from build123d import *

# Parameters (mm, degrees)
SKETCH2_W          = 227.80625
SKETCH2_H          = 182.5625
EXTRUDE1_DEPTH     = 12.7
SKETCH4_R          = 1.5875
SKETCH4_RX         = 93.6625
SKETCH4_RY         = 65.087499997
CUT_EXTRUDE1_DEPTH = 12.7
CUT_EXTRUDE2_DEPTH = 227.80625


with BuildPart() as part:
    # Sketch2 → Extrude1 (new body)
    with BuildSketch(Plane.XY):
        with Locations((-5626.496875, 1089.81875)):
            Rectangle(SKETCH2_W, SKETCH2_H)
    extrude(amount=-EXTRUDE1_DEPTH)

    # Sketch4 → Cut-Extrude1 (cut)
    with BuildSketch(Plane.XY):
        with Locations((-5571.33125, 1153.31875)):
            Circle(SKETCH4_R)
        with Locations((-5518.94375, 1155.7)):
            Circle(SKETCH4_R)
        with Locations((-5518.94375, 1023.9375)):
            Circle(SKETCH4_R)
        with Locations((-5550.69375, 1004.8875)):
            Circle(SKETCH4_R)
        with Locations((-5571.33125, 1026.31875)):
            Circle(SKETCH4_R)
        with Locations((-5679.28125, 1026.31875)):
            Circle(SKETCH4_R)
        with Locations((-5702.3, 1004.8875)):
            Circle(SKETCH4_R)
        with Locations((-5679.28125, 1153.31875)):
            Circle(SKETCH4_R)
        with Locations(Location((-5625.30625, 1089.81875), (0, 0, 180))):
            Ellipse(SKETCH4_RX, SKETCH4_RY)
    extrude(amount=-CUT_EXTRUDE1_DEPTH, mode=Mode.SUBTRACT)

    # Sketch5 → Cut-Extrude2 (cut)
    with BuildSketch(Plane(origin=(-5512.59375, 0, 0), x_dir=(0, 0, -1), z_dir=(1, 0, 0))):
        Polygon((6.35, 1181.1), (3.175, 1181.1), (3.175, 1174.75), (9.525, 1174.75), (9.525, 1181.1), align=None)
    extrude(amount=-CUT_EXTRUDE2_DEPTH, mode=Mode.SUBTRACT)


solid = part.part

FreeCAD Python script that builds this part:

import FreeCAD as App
import Part
import Sketcher
from FreeCAD import Vector
Q = App.Units.Quantity


def add_polygon(sketch, points):
    """Adds a closed chain of lines whose ends are joined by coincident constraints."""
    first, n = sketch.GeometryCount, len(points)
    for a, b in zip(points, points[1:] + points[:1]):
        sketch.addGeometry(Part.LineSegment(App.Vector(*a, 0), App.Vector(*b, 0)), False)
    for i in range(n):
        sketch.addConstraint(Sketcher.Constraint("Coincident", first + i, 2, first + (i + 1) % n, 1))

doc = App.newDocument("Part")
params = doc.addObject("Spreadsheet::Sheet", "Params")
for row, (alias, value) in enumerate([
    ("sketch1_width", "8.96875 in"),
    ("sketch1_height", "7.1875 in"),
    ("pad1_length", "0.5 in"),
    ("sketch2_diameter", "0.125 in"),
    ("pocket1_length", "0.5 in"),
    ("sketch3_width", "0.25 in"),
    ("pocket2_length", "8.96875 in"),
], start=1):
    params.set(f"A{row}", alias)
    params.set(f"B{row}", "=" + value)
    params.setAlias(f"B{row}", alias)

body = doc.addObject("PartDesign::Body", "Body")

# Sketch on XY plane
sketch1 = body.newObject("Sketcher::SketchObject", "Sketch")
sketch1.AttachmentSupport = (doc.getObject("XY_Plane"), [""])
sketch1.MapMode = "FlatFace"
add_polygon(sketch1, [(-5740.4, 1181.1), (-5740.4, 998.5375), (-5512.59375, 998.5375), (-5512.59375, 1181.1)])  # lines 0-3
sketch1.addConstraint(Sketcher.Constraint("Vertical", 0))
sketch1.addConstraint(Sketcher.Constraint("Horizontal", 1))
sketch1.addConstraint(Sketcher.Constraint("Vertical", 2))
sketch1.addConstraint(Sketcher.Constraint("Horizontal", 3))
sketch1.addConstraint(Sketcher.Constraint("DistanceX", 0, 2, -1, 1, Q("226 in")))
sketch1.addConstraint(Sketcher.Constraint("DistanceY", -1, 1, 2, 2, Q("46.5 in")))
sketch1.addConstraint(Sketcher.Constraint("DistanceX", 1, 1, 1, 2, Q("8.96875 in")))
sketch1.addConstraint(Sketcher.Constraint("DistanceY", 0, 2, 0, 1, Q("7.1875 in")))
sketch1.setExpression("Constraints[10]", "Params.sketch1_width")
sketch1.setExpression("Constraints[11]", "Params.sketch1_height")
pad1 = body.newObject("PartDesign::Pad", "Pad")
pad1.Profile = sketch1
pad1.setExpression("Length", "Params.pad1_length")
pad1.Reversed = True

# Sketch on XY plane
sketch2 = body.newObject("Sketcher::SketchObject", "Sketch001")
sketch2.AttachmentSupport = (doc.getObject("XY_Plane"), [""])
sketch2.MapMode = "FlatFace"
sketch2.addGeometry(Part.Circle(Vector(-5571.33125, 1153.31875, 0), Vector(0, 0, 1), 1.5875), False)
sketch2.addGeometry(Part.Circle(Vector(-5518.94375, 1155.7, 0), Vector(0, 0, 1), 1.5875), False)
sketch2.addGeometry(Part.Circle(Vector(-5518.94375, 1023.9375, 0), Vector(0, 0, 1), 1.5875), False)
sketch2.addGeometry(Part.Circle(Vector(-5550.69375, 1004.8875, 0), Vector(0, 0, 1), 1.5875), False)
sketch2.addGeometry(Part.Circle(Vector(-5571.33125, 1026.31875, 0), Vector(0, 0, 1), 1.5875), False)
sketch2.addGeometry(Part.Circle(Vector(-5679.28125, 1026.31875, 0), Vector(0, 0, 1), 1.5875), False)
sketch2.addGeometry(Part.Circle(Vector(-5702.3, 1004.8875, 0), Vector(0, 0, 1), 1.5875), False)
sketch2.addGeometry(Part.Circle(Vector(-5679.28125, 1153.31875, 0), Vector(0, 0, 1), 1.5875), False)
sketch2.addGeometry(Part.Ellipse(Vector(-5718.96875, 1089.81875, 0), Vector(-5625.30625, 1024.73125, 0), Vector(-5625.30625, 1089.81875, 0)), False)
sketch2.addConstraint(Sketcher.Constraint("Block", 8))
sketch2.addConstraint(Sketcher.Constraint("Equal", 0, 1))
sketch2.addConstraint(Sketcher.Constraint("Equal", 1, 2))
sketch2.addConstraint(Sketcher.Constraint("Equal", 2, 3))
sketch2.addConstraint(Sketcher.Constraint("Equal", 3, 4))
sketch2.addConstraint(Sketcher.Constraint("Equal", 4, 5))
sketch2.addConstraint(Sketcher.Constraint("Equal", 5, 6))
sketch2.addConstraint(Sketcher.Constraint("Equal", 6, 7))
sketch2.addConstraint(Sketcher.Constraint("Horizontal", 4, 3, 5, 3))
sketch2.addConstraint(Sketcher.Constraint("Horizontal", 3, 3, 6, 3))
sketch2.addConstraint(Sketcher.Constraint("Horizontal", 0, 3, 7, 3))
sketch2.addConstraint(Sketcher.Constraint("Vertical", 1, 3, 2, 3))
sketch2.addConstraint(Sketcher.Constraint("Vertical", 0, 3, 4, 3))
sketch2.addConstraint(Sketcher.Constraint("Vertical", 5, 3, 7, 3))
sketch2.addConstraint(Sketcher.Constraint("Diameter", 0, Q("0.125 in")))
sketch2.addConstraint(Sketcher.Constraint("DistanceY", 4, 3, 0, 3, Q("5 in")))
sketch2.addConstraint(Sketcher.Constraint("DistanceY", -1, 1, 1, 3, Q("45.5 in")))
sketch2.addConstraint(Sketcher.Constraint("DistanceX", 6, 3, -1, 1, Q("224.5 in")))
sketch2.addConstraint(Sketcher.Constraint("DistanceX", 3, 3, 2, 3, Q("1.25 in")))
sketch2.addConstraint(Sketcher.Constraint("DistanceY", 3, 3, 2, 3, Q("0.75 in")))
sketch2.addConstraint(Sketcher.Constraint("DistanceX", 5, 3, 4, 3, Q("4.25 in")))
sketch2.addConstraint(Sketcher.Constraint("DistanceX", 0, 3, -1, 1, Q("219.34375 in")))
sketch2.addConstraint(Sketcher.Constraint("DistanceY", -1, 1, 0, 3, Q("45.40625 in")))
sketch2.addConstraint(Sketcher.Constraint("DistanceX", 1, 3, -1, 1, Q("217.28125 in")))
sketch2.addConstraint(Sketcher.Constraint("DistanceY", -1, 1, 2, 3, Q("40.3125 in")))
sketch2.setExpression("Constraints[14]", "Params.sketch2_diameter")
pocket1 = body.newObject("PartDesign::Pocket", "Pocket")
pocket1.Profile = sketch2
pocket1.setExpression("Length", "Params.pocket1_length")

# Sketch on YZ plane
sketch3 = body.newObject("Sketcher::SketchObject", "Sketch002")
sketch3.AttachmentSupport = (doc.getObject("YZ_Plane"), [""])
sketch3.MapMode = "FlatFace"
sketch3.AttachmentOffset = App.Placement(Vector(0, 0, -217.03125 * 25.4), App.Rotation())
add_polygon(sketch3, [(1181.1, -3.175), (1174.75, -3.175), (1174.75, -9.525), (1181.1, -9.525)])  # lines 0-3
sketch3.addConstraint(Sketcher.Constraint("Horizontal", 0))
sketch3.addConstraint(Sketcher.Constraint("Vertical", 1))
sketch3.addConstraint(Sketcher.Constraint("Horizontal", 2))
sketch3.addConstraint(Sketcher.Constraint("Vertical", 3))
sketch3.addConstraint(Sketcher.Constraint("Equal", 2, 1))
sketch3.addConstraint(Sketcher.Constraint("DistanceX", 0, 2, 0, 1, Q("0.25 in")))
sketch3.addConstraint(Sketcher.Constraint("DistanceX", -1, 1, 2, 2, Q("46.5 in")))
sketch3.addConstraint(Sketcher.Constraint("DistanceY", 0, 2, -1, 1, Q("0.125 in")))
sketch3.setExpression("Constraints[9]", "Params.sketch3_width")
pocket2 = body.newObject("PartDesign::Pocket", "Pocket001")
pocket2.Profile = sketch3
pocket2.setExpression("Length", "Params.pocket2_length")

doc.recompute()
